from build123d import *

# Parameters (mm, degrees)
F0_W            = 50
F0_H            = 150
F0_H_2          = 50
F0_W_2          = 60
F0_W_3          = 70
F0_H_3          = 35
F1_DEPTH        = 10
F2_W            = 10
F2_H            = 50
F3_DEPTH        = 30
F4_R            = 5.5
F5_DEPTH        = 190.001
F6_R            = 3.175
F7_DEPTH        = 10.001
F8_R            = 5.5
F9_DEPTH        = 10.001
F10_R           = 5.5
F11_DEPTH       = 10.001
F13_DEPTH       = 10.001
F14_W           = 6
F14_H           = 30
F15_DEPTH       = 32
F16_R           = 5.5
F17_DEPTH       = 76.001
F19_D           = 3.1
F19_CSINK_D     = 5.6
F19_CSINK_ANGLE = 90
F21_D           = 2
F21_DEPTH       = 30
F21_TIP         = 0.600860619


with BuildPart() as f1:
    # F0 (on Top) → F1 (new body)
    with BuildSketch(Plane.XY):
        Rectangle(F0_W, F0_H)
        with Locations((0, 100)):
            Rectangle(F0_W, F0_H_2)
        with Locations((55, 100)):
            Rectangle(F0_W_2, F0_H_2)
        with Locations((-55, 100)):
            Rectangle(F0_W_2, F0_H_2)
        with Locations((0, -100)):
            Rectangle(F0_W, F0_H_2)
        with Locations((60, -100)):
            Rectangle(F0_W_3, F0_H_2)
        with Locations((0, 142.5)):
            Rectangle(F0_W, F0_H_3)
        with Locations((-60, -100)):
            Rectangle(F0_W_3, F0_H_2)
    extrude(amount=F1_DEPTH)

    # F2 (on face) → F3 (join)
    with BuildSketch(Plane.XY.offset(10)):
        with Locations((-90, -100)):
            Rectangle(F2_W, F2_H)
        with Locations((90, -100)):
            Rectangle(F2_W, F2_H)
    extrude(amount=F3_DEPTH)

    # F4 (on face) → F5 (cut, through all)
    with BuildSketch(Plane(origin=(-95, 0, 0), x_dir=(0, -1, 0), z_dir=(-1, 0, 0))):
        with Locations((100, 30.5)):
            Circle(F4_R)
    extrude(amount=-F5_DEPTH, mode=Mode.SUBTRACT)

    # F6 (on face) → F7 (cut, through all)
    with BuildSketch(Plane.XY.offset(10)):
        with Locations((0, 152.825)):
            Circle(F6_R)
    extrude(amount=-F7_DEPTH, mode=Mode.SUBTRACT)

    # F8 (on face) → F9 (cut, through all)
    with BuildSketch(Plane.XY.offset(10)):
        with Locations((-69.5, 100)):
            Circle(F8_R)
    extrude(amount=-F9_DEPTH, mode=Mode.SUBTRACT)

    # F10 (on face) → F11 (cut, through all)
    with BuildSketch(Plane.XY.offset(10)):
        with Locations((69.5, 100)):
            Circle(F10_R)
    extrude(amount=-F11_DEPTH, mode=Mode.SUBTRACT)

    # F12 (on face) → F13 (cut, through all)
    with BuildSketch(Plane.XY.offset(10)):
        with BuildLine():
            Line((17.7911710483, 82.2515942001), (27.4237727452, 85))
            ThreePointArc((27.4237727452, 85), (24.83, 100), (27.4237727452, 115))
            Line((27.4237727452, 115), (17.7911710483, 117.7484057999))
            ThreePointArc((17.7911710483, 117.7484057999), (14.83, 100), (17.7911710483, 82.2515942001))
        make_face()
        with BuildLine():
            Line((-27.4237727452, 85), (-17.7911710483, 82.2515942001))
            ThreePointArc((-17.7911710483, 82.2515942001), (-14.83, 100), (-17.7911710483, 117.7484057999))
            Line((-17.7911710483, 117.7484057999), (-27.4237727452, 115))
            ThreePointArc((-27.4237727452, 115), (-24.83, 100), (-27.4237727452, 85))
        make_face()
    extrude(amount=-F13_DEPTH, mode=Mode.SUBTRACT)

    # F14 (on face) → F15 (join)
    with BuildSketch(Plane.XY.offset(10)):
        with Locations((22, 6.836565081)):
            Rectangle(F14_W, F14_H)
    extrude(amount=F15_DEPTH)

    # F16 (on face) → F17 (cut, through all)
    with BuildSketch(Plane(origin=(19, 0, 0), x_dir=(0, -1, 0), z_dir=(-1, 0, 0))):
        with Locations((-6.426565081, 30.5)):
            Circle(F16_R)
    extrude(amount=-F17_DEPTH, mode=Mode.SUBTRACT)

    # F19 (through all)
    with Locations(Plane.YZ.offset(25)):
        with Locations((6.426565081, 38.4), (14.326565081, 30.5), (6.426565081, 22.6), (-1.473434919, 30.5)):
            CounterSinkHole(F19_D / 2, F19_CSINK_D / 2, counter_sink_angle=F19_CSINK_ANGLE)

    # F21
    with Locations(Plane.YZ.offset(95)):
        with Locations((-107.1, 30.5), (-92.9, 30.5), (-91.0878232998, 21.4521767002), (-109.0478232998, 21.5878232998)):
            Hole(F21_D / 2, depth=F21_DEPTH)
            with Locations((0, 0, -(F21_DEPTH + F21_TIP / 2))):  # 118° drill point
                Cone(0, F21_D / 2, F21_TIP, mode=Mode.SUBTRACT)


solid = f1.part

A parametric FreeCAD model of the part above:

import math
import FreeCAD as App
import Part
import Sketcher

V = App.Vector

doc = App.newDocument("Part")
body = doc.addObject("PartDesign::Body", "Body")

# Sketch on XY plane
sketch1 = doc.addObject("Sketcher::SketchObject", "Sketch")
body.addObject(sketch1)
sketch1.AttachmentSupport = (doc.XY_Plane, [""])
sketch1.MapMode = "FlatFace"
sketch1.addGeometry([
    Part.LineSegment(V(25, 75, 0), V(85, 75, 0)),  # 0
    Part.LineSegment(V(85, 75, 0), V(85, 125, 0)),  # 1
    Part.LineSegment(V(85, 125, 0), V(25, 125, 0)),  # 2
    Part.LineSegment(V(25, 125, 0), V(25, 160, 0)),  # 3
    Part.LineSegment(V(25, 160, 0), V(-25, 160, 0)),  # 4
    Part.LineSegment(V(-25, 160, 0), V(-25, 125, 0)),  # 5
    Part.LineSegment(V(-25, 125, 0), V(-85, 125, 0)),  # 6
    Part.LineSegment(V(-85, 125, 0), V(-85, 75, 0)),  # 7
    Part.LineSegment(V(-85, 75, 0), V(-25, 75, 0)),  # 8
    Part.LineSegment(V(-25, 75, 0), V(-25, -75, 0)),  # 9
    Part.LineSegment(V(-25, -75, 0), V(-95, -75, 0)),  # 10
    Part.LineSegment(V(-95, -75, 0), V(-95, -125, 0)),  # 11
    Part.LineSegment(V(-95, -125, 0), V(95, -125, 0)),  # 12
    Part.LineSegment(V(95, -125, 0), V(95, -75, 0)),  # 13
    Part.LineSegment(V(95, -75, 0), V(25, -75, 0)),  # 14
    Part.LineSegment(V(25, -75, 0), V(25, 75, 0)),  # 15
], False)
sketch1.addConstraint([
    Sketcher.Constraint("Coincident", 0, 2, 1, 1),
    Sketcher.Constraint("Coincident", 1, 2, 2, 1),
    Sketcher.Constraint("Coincident", 2, 2, 3, 1),
    Sketcher.Constraint("Coincident", 3, 2, 4, 1),
    Sketcher.Constraint("Coincident", 4, 2, 5, 1),
    Sketcher.Constraint("Coincident", 5, 2, 6, 1),
    Sketcher.Constraint("Coincident", 6, 2, 7, 1),
    Sketcher.Constraint("Coincident", 7, 2, 8, 1),
    Sketcher.Constraint("Coincident", 8, 2, 9, 1),
    Sketcher.Constraint("Coincident", 9, 2, 10, 1),
    Sketcher.Constraint("Coincident", 10, 2, 11, 1),
    Sketcher.Constraint("Coincident", 11, 2, 12, 1),
    Sketcher.Constraint("Coincident", 12, 2, 13, 1),
    Sketcher.Constraint("Coincident", 13, 2, 14, 1),
    Sketcher.Constraint("Coincident", 14, 2, 15, 1),
    Sketcher.Constraint("Coincident", 15, 2, 0, 1),
    Sketcher.Constraint("Horizontal", 0),
    Sketcher.Constraint("Vertical", 1),
    Sketcher.Constraint("Horizontal", 2),
    Sketcher.Constraint("Vertical", 3),
    Sketcher.Constraint("Horizontal", 4),
    Sketcher.Constraint("Vertical", 5),
    Sketcher.Constraint("Horizontal", 6),
    Sketcher.Constraint("Vertical", 7),
    Sketcher.Constraint("Horizontal", 8),
    Sketcher.Constraint("Vertical", 9),
    Sketcher.Constraint("Horizontal", 10),
    Sketcher.Constraint("Vertical", 11),
    Sketcher.Constraint("Horizontal", 12),
    Sketcher.Constraint("Vertical", 13),
    Sketcher.Constraint("Horizontal", 14),
    Sketcher.Constraint("Vertical", 15),
    Sketcher.Constraint("Symmetric", 8, 2, 14, 2, -1, 1),
    Sketcher.Constraint("Symmetric", 2, 2, 5, 2, -2),
    Sketcher.Constraint("Symmetric", 0, 2, 7, 2, -2),
    Sketcher.Constraint("Symmetric", 10, 2, 13, 2, -2),
    Sketcher.Constraint("Vertical", 5, 2, 8, 2),
    Sketcher.Constraint("Equal", 4, 1),
    Sketcher.Constraint("Equal", 7, 11),
    Sketcher.Constraint("DistanceX", 0, 1, 0, 2, 60.0),
    Sketcher.Constraint("DistanceX", 4, 2, 4, 1, 50.0),
    Sketcher.Constraint("DistanceX", 10, 2, 10, 1, 70.0),
    Sketcher.Constraint("DistanceY", 3, 1, 3, 2, 35.0),
    Sketcher.Constraint("DistanceY", 9, 2, 9, 1, 150.0),
])
pad1 = doc.addObject("PartDesign::Pad", "Pad")
body.addObject(pad1)
pad1.Profile = sketch1
pad1.Length = 10

# Sketch on XY plane
sketch2 = doc.addObject("Sketcher::SketchObject", "Sketch001")
body.addObject(sketch2)
sketch2.AttachmentSupport = (doc.XY_Plane, [""])
sketch2.MapMode = "FlatFace"
sketch2.AttachmentOffset = App.Placement(V(0, 0, 10), App.Rotation())
sketch2.addGeometry([
    Part.LineSegment(V(-95, -75, 0), V(-95, -125, 0)),  # 0
    Part.LineSegment(V(-95, -125, 0), V(-85, -125, 0)),  # 1
    Part.LineSegment(V(-85, -125, 0), V(-85, -75, 0)),  # 2
    Part.LineSegment(V(-85, -75, 0), V(-95, -75, 0)),  # 3
    Part.LineSegment(V(85, -75, 0), V(85, -125, 0)),  # 4
    Part.LineSegment(V(85, -125, 0), V(95, -125, 0)),  # 5
    Part.LineSegment(V(95, -125, 0), V(95, -75, 0)),  # 6
    Part.LineSegment(V(95, -75, 0), V(85, -75, 0)),  # 7
], False)
sketch2.addConstraint([
    Sketcher.Constraint("Coincident", 0, 2, 1, 1),
    Sketcher.Constraint("Coincident", 1, 2, 2, 1),
    Sketcher.Constraint("Coincident", 2, 2, 3, 1),
    Sketcher.Constraint("Coincident", 3, 2, 0, 1),
    Sketcher.Constraint("Coincident", 4, 2, 5, 1),
    Sketcher.Constraint("Coincident", 5, 2, 6, 1),
    Sketcher.Constraint("Coincident", 6, 2, 7, 1),
    Sketcher.Constraint("Coincident", 7, 2, 4, 1),
    Sketcher.Constraint("Vertical", 0),
    Sketcher.Constraint("Horizontal", 1),
    Sketcher.Constraint("Vertical", 2),
    Sketcher.Constraint("Horizontal", 3),
    Sketcher.Constraint("Vertical", 4),
    Sketcher.Constraint("Horizontal", 5),
    Sketcher.Constraint("Vertical", 6),
    Sketcher.Constraint("Horizontal", 7),
    Sketcher.Constraint("Symmetric", 1, 2, 4, 2, -2),
    Sketcher.Constraint("Symmetric", 3, 2, 6, 2, -2),
    Sketcher.Constraint("DistanceX", 1, 1, 1, 2, 10.0),
    Sketcher.Constraint("DistanceY", 0, 2, 0, 1, 50.0),
    Sketcher.Constraint("DistanceX", 0, 2, -1, 1, 95.0),
    Sketcher.Constraint("DistanceY", 0, 2, -1, 1, 125.0),
])
pad2 = doc.addObject("PartDesign::Pad", "Pad001")
body.addObject(pad2)
pad2.Profile = sketch2
pad2.Length = 30

# Sketch on YZ plane
sketch3 = doc.addObject("Sketcher::SketchObject", "Sketch002")
body.addObject(sketch3)
sketch3.AttachmentSupport = (doc.YZ_Plane, [""])
sketch3.MapMode = "FlatFace"
sketch3.AttachmentOffset = App.Placement(V(0, 0, -95), App.Rotation())
sketch3.addGeometry(Part.Circle(V(-100, 30.5, 0), V(0, 0, 1), 5.5), False)
sketch3.addConstraint([
    Sketcher.Constraint("Diameter", 0, 11.0),
    Sketcher.Constraint("DistanceX", 0, 3, -1, 1, 100.0),
    Sketcher.Constraint("DistanceY", -1, 1, 0, 3, 30.5),
])
pocket1 = doc.addObject("PartDesign::Pocket", "Pocket")
body.addObject(pocket1)
pocket1.Profile = sketch3
pocket1.Type = "ThroughAll"
pocket1.Reversed = True

# Sketch on XY plane
sketch4 = doc.addObject("Sketcher::SketchObject", "Sketch003")
body.addObject(sketch4)
sketch4.AttachmentSupport = (doc.XY_Plane, [""])
sketch4.MapMode = "FlatFace"
sketch4.AttachmentOffset = App.Placement(V(0, 0, 10), App.Rotation())
sketch4.addGeometry(Part.Circle(V(0, 152.825, 0), V(0, 0, 1), 3.175), False)
sketch4.addConstraint([
    Sketcher.Constraint("PointOnObject", 0, 3, -2),
    Sketcher.Constraint("Diameter", 0, 6.35),
    Sketcher.Constraint("DistanceY", -1, 1, 0, 3, 152.825),
])
pocket2 = doc.addObject("PartDesign::Pocket", "Pocket001")
body.addObject(pocket2)
pocket2.Profile = sketch4
pocket2.Type = "ThroughAll"

# Sketch on XY plane
sketch5 = doc.addObject("Sketcher::SketchObject", "Sketch004")
body.addObject(sketch5)
sketch5.AttachmentSupport = (doc.XY_Plane, [""])
sketch5.MapMode = "FlatFace"
sketch5.AttachmentOffset = App.Placement(V(0, 0, 10), App.Rotation())
sketch5.addGeometry(Part.Circle(V(-69.5, 100, 0), V(0, 0, 1), 5.5), False)
sketch5.addConstraint([
    Sketcher.Constraint("Diameter", 0, 11.0),
    Sketcher.Constraint("DistanceY", -1, 1, 0, 3, 100.0),
    Sketcher.Constraint("DistanceX", 0, 3, -1, 1, 69.5),
])
pocket3 = doc.addObject("PartDesign::Pocket", "Pocket002")
body.addObject(pocket3)
pocket3.Profile = sketch5
pocket3.Type = "ThroughAll"

# Sketch on XY plane
sketch6 = doc.addObject("Sketcher::SketchObject", "Sketch005")
body.addObject(sketch6)
sketch6.AttachmentSupport = (doc.XY_Plane, [""])
sketch6.MapMode = "FlatFace"
sketch6.AttachmentOffset = App.Placement(V(0, 0, 10), App.Rotation())
sketch6.addGeometry(Part.Circle(V(69.5, 100, 0), V(0, 0, 1), 5.5), False)
sketch6.addConstraint([
    Sketcher.Constraint("Diameter", 0, 11.0),
    Sketcher.Constraint("DistanceY", -1, 1, 0, 3, 100.0),
    Sketcher.Constraint("DistanceX", -1, 1, 0, 3, 69.5),
])
pocket4 = doc.addObject("PartDesign::Pocket", "Pocket003")
body.addObject(pocket4)
pocket4.Profile = sketch6
pocket4.Type = "ThroughAll"

# Sketch on XY plane
sketch7 = doc.addObject("Sketcher::SketchObject", "Sketch006")
body.addObject(sketch7)
sketch7.AttachmentSupport = (doc.XY_Plane, [""])
sketch7.MapMode = "FlatFace"
sketch7.AttachmentOffset = App.Placement(V(0, 0, 10), App.Rotation())
sketch7.addGeometry([
    Part.LineSegment(V(17.791171, 82.251594, 0), V(27.423773, 85, 0)),  # 0
    Part.ArcOfCircle(Part.Circle(V(69.5, 100, 0), V(0, 0, 1), 44.67), math.radians(160.37906), math.radians(199.62094)),  # 1
    Part.LineSegment(V(27.423773, 115, 0), V(17.791171, 117.748406, 0)),  # 2
    Part.ArcOfCircle(Part.Circle(V(69.5, 100, 0), V(0, 0, 1), 54.67), math.radians(161.055861), math.radians(198.944139)),  # 3
    Part.LineSegment(V(-27.423773, 85, 0), V(-17.791171, 82.251594, 0)),  # 4
    Part.ArcOfCircle(Part.Circle(V(-69.5, 100, 0), V(0, 0, 1), 54.67), math.radians(-18.944139), math.radians(18.944139)),  # 5
    Part.LineSegment(V(-17.791171, 117.748406, 0), V(-27.423773, 115, 0)),  # 6
    Part.ArcOfCircle(Part.Circle(V(-69.5, 100, 0), V(0, 0, 1), 44.67), math.radians(-19.62094), math.radians(19.62094)),  # 7
], False)
sketch7.addConstraint([
    Sketcher.Constraint("Coincident", 0, 2, 1, 2),
    Sketcher.Constraint("Coincident", 1, 1, 2, 1),
    Sketcher.Constraint("Coincident", 2, 2, 3, 1),
    Sketcher.Constraint("Coincident", 3, 2, 0, 1),
    Sketcher.Constraint("Coincident", 4, 2, 5, 1),
    Sketcher.Constraint("Coincident", 5, 2, 6, 1),
    Sketcher.Constraint("Coincident", 6, 2, 7, 2),
    Sketcher.Constraint("Coincident", 7, 1, 4, 1),
    Sketcher.Constraint("Coincident", 3, 3, 1, 3),
    Sketcher.Constraint("Coincident", 7, 3, 5, 3),
    Sketcher.Constraint("Equal", 3, 5),
    Sketcher.Constraint("Equal", 1, 7),
    Sketcher.Constraint("Symmetric", 1, 3, 5, 3, -2),
    Sketcher.Constraint("Parallel", 2, 4),
    Sketcher.Constraint("Parallel", 0, 6),
    Sketcher.Constraint("Horizontal", 3, 2, 4, 2),
    Sketcher.Constraint("Horizontal", 2, 2, 5, 2),
    Sketcher.Constraint("Horizontal", 1, 1, 6, 2),
    Sketcher.Constraint("Vertical", 0, 2, 1, 1),
    Sketcher.Constraint("Radius", 1, 44.67),
    Sketcher.Constraint("Radius", 3, 54.67),
    Sketcher.Constraint("DistanceY", -1, 1, 1, 3, 100.0),
    Sketcher.Constraint("DistanceY", -1, 1, 0, 2, 85.0),
    Sketcher.Constraint("DistanceX", 5, 3, 3, 3, 139.0),
    Sketcher.Constraint("DistanceX", 2, 2, 1, 1, 9.632602),
])
pocket5 = doc.addObject("PartDesign::Pocket", "Pocket004")
body.addObject(pocket5)
pocket5.Profile = sketch7
pocket5.Type = "ThroughAll"

# Sketch on XY plane
sketch8 = doc.addObject("Sketcher::SketchObject", "Sketch007")
body.addObject(sketch8)
sketch8.AttachmentSupport = (doc.XY_Plane, [""])
sketch8.MapMode = "FlatFace"
sketch8.AttachmentOffset = App.Placement(V(0, 0, 10), App.Rotation())
sketch8.addGeometry([
    Part.LineSegment(V(19, 21.836565, 0), V(19, -8.163435, 0)),
    Part.LineSegment(V(19, -8.163435, 0), V(25, -8.163435, 0)),
    Part.LineSegment(V(25, -8.163435, 0), V(25, 21.836565, 0)),
    Part.LineSegment(V(25, 21.836565, 0), V(19, 21.836565, 0)),
], False)
sketch8.addConstraint([
    Sketcher.Constraint("Coincident", 0, 2, 1, 1),
    Sketcher.Constraint("Coincident", 1, 2, 2, 1),
    Sketcher.Constraint("Coincident", 2, 2, 3, 1),
    Sketcher.Constraint("Coincident", 3, 2, 0, 1),
    Sketcher.Constraint("Vertical", 0),
    Sketcher.Constraint("Horizontal", 1),
    Sketcher.Constraint("Vertical", 2),
    Sketcher.Constraint("Horizontal", 3),
    Sketcher.Constraint("DistanceX", 1, 1, 1, 2, 6.0),
    Sketcher.Constraint("DistanceY", 0, 2, 0, 1, 30.0),
    Sketcher.Constraint("DistanceX", -1, 1, 0, 2, 19.0),
    Sketcher.Constraint("DistanceY", 0, 2, -1, 1, 8.163435),
])
pad3 = doc.addObject("PartDesign::Pad", "Pad002")
body.addObject(pad3)
pad3.Profile = sketch8
pad3.Length = 32

# Sketch on YZ plane
sketch9 = doc.addObject("Sketcher::SketchObject", "Sketch008")
body.addObject(sketch9)
sketch9.AttachmentSupport = (doc.YZ_Plane, [""])
sketch9.MapMode = "FlatFace"
sketch9.AttachmentOffset = App.Placement(V(0, 0, 19), App.Rotation())
sketch9.addGeometry(Part.Circle(V(6.426565, 30.5, 0), V(0, 0, 1), 5.5), False)
sketch9.addConstraint([
    Sketcher.Constraint("Diameter", 0, 11.0),
    Sketcher.Constraint("DistanceY", -1, 1, 0, 3, 30.5),
    Sketcher.Constraint("DistanceX", -1, 1, 0, 3, 6.426565),
])
pocket6 = doc.addObject("PartDesign::Pocket", "Pocket005")
body.addObject(pocket6)
pocket6.Profile = sketch9
pocket6.Type = "ThroughAll"
pocket6.Reversed = True

# Sketch on YZ plane
sketch10 = doc.addObject("Sketcher::SketchObject", "Sketch009")
body.addObject(sketch10)
sketch10.AttachmentSupport = (doc.YZ_Plane, [""])
sketch10.MapMode = "FlatFace"
sketch10.AttachmentOffset = App.Placement(V(0, 0, 25), App.Rotation())
sketch10.addGeometry([
    Part.Circle(V(6.426565, 38.4, 0), V(0, 0, 1), 1.55),
    Part.Circle(V(14.326565, 30.5, 0), V(0, 0, 1), 1.55),
    Part.Circle(V(6.426565, 22.6, 0), V(0, 0, 1), 1.55),
    Part.Circle(V(-1.473435, 30.5, 0), V(0, 0, 1), 1.55),
], False)
sketch10.addConstraint([
    Sketcher.Constraint("Equal", 0, 1),
    Sketcher.Constraint("Equal", 1, 2),
    Sketcher.Constraint("Equal", 2, 3),
    Sketcher.Constraint("Horizontal", 1, 3, 3, 3),
    Sketcher.Constraint("Vertical", 0, 3, 2, 3),
    Sketcher.Constraint("Diameter", 0, 3.1),
    Sketcher.Constraint("DistanceY", -1, 1, 0, 3, 38.4),
    Sketcher.Constraint("DistanceY", -1, 1, 1, 3, 30.5),
    Sketcher.Constraint("DistanceY", -1, 1, 2, 3, 22.6),
    Sketcher.Constraint("DistanceX", 0, 3, 1, 3, 7.9),
    Sketcher.Constraint("DistanceX", 3, 3, 0, 3, 7.9),
    Sketcher.Constraint("DistanceX", -1, 1, 0, 3, 6.426565),
])
doc.recompute()
hole = doc.addObject("PartDesign::Hole", "Hole")
body.addObject(hole)
hole.Profile = sketch10
hole.ThreadType = "None"
hole.Diameter = 3.1
hole.DepthType = "ThroughAll"
hole.HoleCutType = "Countersink"
hole.HoleCutDiameter = 5.6
hole.HoleCutCountersinkAngle = 90

# Sketch on YZ plane
sketch11 = doc.addObject("Sketcher::SketchObject", "Sketch010")
body.addObject(sketch11)
sketch11.AttachmentSupport = (doc.YZ_Plane, [""])
sketch11.MapMode = "FlatFace"
sketch11.AttachmentOffset = App.Placement(V(0, 0, 95), App.Rotation())
sketch11.addGeometry([
    Part.Circle(V(-107.1, 30.5, 0), V(0, 0, 1), 1),
    Part.Circle(V(-92.9, 30.5, 0), V(0, 0, 1), 1),
    Part.Circle(V(-91.087823, 21.452177, 0), V(0, 0, 1), 1),
    Part.Circle(V(-109.047823, 21.587823, 0), V(0, 0, 1), 1),
], False)
sketch11.addConstraint([
    Sketcher.Constraint("Equal", 0, 1),
    Sketcher.Constraint("Equal", 1, 2),
    Sketcher.Constraint("Equal", 2, 3),
    Sketcher.Constraint("Horizontal", 0, 3, 1, 3),
    Sketcher.Constraint("Diameter", 0, 2.0),
    Sketcher.Constraint("DistanceX", 0, 3, -1, 1, 107.1),
    Sketcher.Constraint("DistanceY", -1, 1, 0, 3, 30.5),
    Sketcher.Constraint("DistanceX", 1, 3, -1, 1, 92.9),
    Sketcher.Constraint("DistanceX", 3, 3, 2, 3, 17.96),
    Sketcher.Constraint("DistanceX", 2, 3, -1, 1, 91.087823),
    Sketcher.Constraint("DistanceY", -1, 1, 2, 3, 21.452177),
    Sketcher.Constraint("DistanceY", -1, 1, 3, 3, 21.587823),
])
doc.recompute()
hole2 = doc.addObject("PartDesign::Hole", "Hole001")
body.addObject(hole2)
hole2.Profile = sketch11
hole2.ThreadType = "None"
hole2.Diameter = 2
hole2.DepthType = "Dimension"
hole2.Depth = 30
hole2.DrillPoint = "Angled"
hole2.DrillPointAngle = 118

doc.recompute()
